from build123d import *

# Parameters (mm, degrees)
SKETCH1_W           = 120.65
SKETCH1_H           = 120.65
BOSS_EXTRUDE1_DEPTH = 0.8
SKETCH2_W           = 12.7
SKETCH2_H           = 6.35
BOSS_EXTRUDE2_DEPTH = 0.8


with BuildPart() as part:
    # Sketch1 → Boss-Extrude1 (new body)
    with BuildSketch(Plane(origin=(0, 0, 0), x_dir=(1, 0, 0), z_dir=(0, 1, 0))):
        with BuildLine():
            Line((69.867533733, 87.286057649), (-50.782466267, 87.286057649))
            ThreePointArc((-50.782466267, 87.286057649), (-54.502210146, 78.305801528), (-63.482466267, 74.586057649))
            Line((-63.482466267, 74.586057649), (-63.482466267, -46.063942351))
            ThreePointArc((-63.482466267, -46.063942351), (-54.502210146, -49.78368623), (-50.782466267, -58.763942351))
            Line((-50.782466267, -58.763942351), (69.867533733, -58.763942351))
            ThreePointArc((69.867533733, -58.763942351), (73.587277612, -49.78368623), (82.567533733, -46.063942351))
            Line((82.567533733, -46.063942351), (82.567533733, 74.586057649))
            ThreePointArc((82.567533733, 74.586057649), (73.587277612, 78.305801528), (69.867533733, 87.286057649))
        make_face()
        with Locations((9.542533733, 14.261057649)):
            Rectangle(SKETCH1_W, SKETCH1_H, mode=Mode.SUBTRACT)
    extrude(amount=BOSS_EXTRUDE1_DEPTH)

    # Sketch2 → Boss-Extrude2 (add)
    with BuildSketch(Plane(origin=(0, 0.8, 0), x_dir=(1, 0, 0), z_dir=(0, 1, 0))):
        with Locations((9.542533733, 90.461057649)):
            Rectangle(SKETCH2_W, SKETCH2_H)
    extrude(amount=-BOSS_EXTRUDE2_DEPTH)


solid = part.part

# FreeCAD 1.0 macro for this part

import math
import FreeCAD as App
import Part
import Sketcher
Q = App.Units.Quantity


def add_polygon(sketch, points):
    """Adds a closed chain of lines whose ends are joined by coincident constraints."""
    first, n = sketch.GeometryCount, len(points)
    for a, b in zip(points, points[1:] + points[:1]):
        sketch.addGeometry(Part.LineSegment(App.Vector(*a, 0), App.Vector(*b, 0)), False)
    for i in range(n):
        sketch.addConstraint(Sketcher.Constraint("Coincident", first + i, 2, first + (i + 1) % n, 1))

doc = App.newDocument("Part")
body = doc.addObject("PartDesign::Body", "Body")

sketch1 = body.newObject("Sketcher::SketchObject", "Sketch")
sketch1.AttachmentSupport = (doc.getObject("XZ_Plane"), [""])
sketch1.MapMode = "FlatFace"
sketch1.addGeometry(Part.LineSegment(App.Vector(69.867534, -87.286058, 0), App.Vector(-50.782466, -87.286058, 0)), False)
sketch1.addGeometry(Part.ArcOfCircle(Part.Circle(App.Vector(-63.482466, -87.286058, 0), App.Vector(0, 0, 1), 12.7), math.radians(0), math.radians(90)), False)
sketch1.addGeometry(Part.LineSegment(App.Vector(-63.482466, -74.586058, 0), App.Vector(-63.482466, 46.063942, 0)), False)
sketch1.addGeometry(Part.ArcOfCircle(Part.Circle(App.Vector(-63.482466, 58.763942, 0), App.Vector(0, 0, 1), 12.7), math.radians(-90), math.radians(0)), False)
sketch1.addGeometry(Part.LineSegment(App.Vector(-50.782466, 58.763942, 0), App.Vector(69.867534, 58.763942, 0)), False)
sketch1.addGeometry(Part.ArcOfCircle(Part.Circle(App.Vector(82.567534, 58.763942, 0), App.Vector(0, 0, 1), 12.7), math.radians(180), math.radians(270)), False)
sketch1.addGeometry(Part.LineSegment(App.Vector(82.567534, 46.063942, 0), App.Vector(82.567534, -74.586058, 0)), False)
sketch1.addGeometry(Part.ArcOfCircle(Part.Circle(App.Vector(82.567534, -87.286058, 0), App.Vector(0, 0, 1), 12.7), math.radians(90), math.radians(180)), False)
add_polygon(sketch1, [(69.867534, 46.063942), (-50.782466, 46.063942), (-50.782466, -74.586058), (69.867534, -74.586058)])
sketch1.addConstraint([
    Sketcher.Constraint("Coincident", 0, 2, 1, 1),
    Sketcher.Constraint("Coincident", 1, 2, 2, 1),
    Sketcher.Constraint("Coincident", 2, 2, 3, 1),
    Sketcher.Constraint("Coincident", 3, 2, 4, 1),
    Sketcher.Constraint("Coincident", 4, 2, 5, 1),
    Sketcher.Constraint("Coincident", 5, 2, 6, 1),
    Sketcher.Constraint("Coincident", 6, 2, 7, 1),
    Sketcher.Constraint("Coincident", 7, 2, 0, 1),
    Sketcher.Constraint("Horizontal", 0),
    Sketcher.Constraint("Vertical", 2),
    Sketcher.Constraint("Horizontal", 4),
    Sketcher.Constraint("Vertical", 6),
    Sketcher.Constraint("Horizontal", 8),
    Sketcher.Constraint("Vertical", 9),
    Sketcher.Constraint("Horizontal", 10),
    Sketcher.Constraint("Vertical", 11),
    Sketcher.Constraint("Equal", 1, 3),
    Sketcher.Constraint("Equal", 3, 5),
    Sketcher.Constraint("Equal", 5, 7),
    Sketcher.Constraint("Horizontal", 3, 3, 5, 3),
    Sketcher.Constraint("Horizontal", 1, 3, 7, 3),
    Sketcher.Constraint("Horizontal", 7, 3, 0, 2),
    Sketcher.Constraint("Horizontal", 5, 3, 3, 2),
    Sketcher.Constraint("Horizontal", 5, 2, 8, 2),
    Sketcher.Constraint("Horizontal", 6, 2, 9, 2),
    Sketcher.Constraint("Vertical", 1, 3, 3, 3),
    Sketcher.Constraint("Vertical", 5, 3, 7, 3),
    Sketcher.Constraint("Vertical", 3, 3, 1, 2),
    Sketcher.Constraint("Vertical", 7, 3, 5, 2),
    Sketcher.Constraint("Vertical", 3, 2, 8, 2),
    Sketcher.Constraint("Vertical", 7, 2, 10, 2),
    Sketcher.Constraint("Equal", 10, 2),
    Sketcher.Constraint("Radius", 1, Q("0.5 in")),
    Sketcher.Constraint("DistanceX", 0, 2, 0, 1, Q("4.75 in")),
    Sketcher.Constraint("DistanceX", 1, 3, -1, 1, Q("63.482466 mm")),
    Sketcher.Constraint("DistanceY", 1, 3, -1, 1, Q("87.286058 mm")),
])
pad1 = body.newObject("PartDesign::Pad", "Pad")
pad1.Profile = sketch1
pad1.Length = 0.8
pad1.Reversed = True

sketch2 = body.newObject("Sketcher::SketchObject", "Sketch001")
sketch2.AttachmentSupport = (doc.getObject("XZ_Plane"), [""])
sketch2.MapMode = "FlatFace"
sketch2.AttachmentOffset = App.Placement(App.Vector(0, 0, -0.8), App.Rotation())
add_polygon(sketch2, [(3.192534, -93.636058), (3.192534, -87.286058), (15.892534, -87.286058), (15.892534, -93.636058)])
sketch2.addConstraint([
    Sketcher.Constraint("Vertical", 0),
    Sketcher.Constraint("Horizontal", 1),
    Sketcher.Constraint("Vertical", 2),
    Sketcher.Constraint("Horizontal", 3),
    Sketcher.Constraint("DistanceX", 1, 1, 1, 2, Q("0.5 in")),
    Sketcher.Constraint("DistanceY", 0, 1, 0, 2, Q("0.25 in")),
    Sketcher.Constraint("DistanceX", -1, 1, 0, 2, Q("3.192534 mm")),
    Sketcher.Constraint("DistanceY", 0, 2, -1, 1, Q("87.286058 mm")),
])
pad2 = body.newObject("PartDesign::Pad", "Pad001")
pad2.Profile = sketch2
pad2.Length = 0.8

doc.recompute()
